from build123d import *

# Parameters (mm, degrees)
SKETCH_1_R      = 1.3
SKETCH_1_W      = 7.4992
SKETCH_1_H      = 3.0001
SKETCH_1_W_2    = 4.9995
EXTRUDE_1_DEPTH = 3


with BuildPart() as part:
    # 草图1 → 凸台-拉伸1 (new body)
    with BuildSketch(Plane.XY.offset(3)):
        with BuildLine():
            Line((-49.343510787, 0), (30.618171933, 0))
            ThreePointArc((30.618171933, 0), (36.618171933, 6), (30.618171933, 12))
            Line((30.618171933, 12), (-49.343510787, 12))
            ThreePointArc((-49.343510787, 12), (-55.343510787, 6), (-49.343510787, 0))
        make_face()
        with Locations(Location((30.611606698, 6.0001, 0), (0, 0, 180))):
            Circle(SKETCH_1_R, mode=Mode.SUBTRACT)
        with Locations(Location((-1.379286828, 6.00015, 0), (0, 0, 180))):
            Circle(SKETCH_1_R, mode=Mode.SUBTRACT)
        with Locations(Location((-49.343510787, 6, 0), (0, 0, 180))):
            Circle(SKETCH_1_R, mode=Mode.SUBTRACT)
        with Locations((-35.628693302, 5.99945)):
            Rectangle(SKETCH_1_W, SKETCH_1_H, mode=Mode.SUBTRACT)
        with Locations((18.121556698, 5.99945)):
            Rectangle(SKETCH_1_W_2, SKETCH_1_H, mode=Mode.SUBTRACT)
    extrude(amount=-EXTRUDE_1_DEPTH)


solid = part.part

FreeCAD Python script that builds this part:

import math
import FreeCAD as App
import Part
import Sketcher

doc = App.newDocument("Part")
params = doc.addObject("Spreadsheet::Sheet", "Params")
for row, (alias, value) in enumerate([
    ("sketch1_radius", "6 mm"),
    ("sketch1_diameter", "2.6 mm"),
    ("pad1_length", "3 mm"),
], start=1):
    params.set(f"A{row}", alias)
    params.set(f"B{row}", "=" + value)
    params.setAlias(f"B{row}", alias)

body = doc.addObject("PartDesign::Body", "Body")

# Sketch on XY plane
sketch1 = body.newObject("Sketcher::SketchObject", "Sketch")
sketch1.AttachmentSupport = (doc.getObject("XY_Plane"), [""])
sketch1.MapMode = "FlatFace"
sketch1.AttachmentOffset = App.Placement(App.Vector(0, 0, 3), App.Rotation())
sketch1.addGeometry(Part.LineSegment(App.Vector(-49.343511, 0, 0), App.Vector(30.618172, 0, 0)), False)
sketch1.addGeometry(Part.ArcOfCircle(Part.Circle(App.Vector(30.618172, 6, 0), App.Vector(0, 0, 1), 6), math.radians(-90), math.radians(90)), False)
sketch1.addGeometry(Part.LineSegment(App.Vector(30.618172, 12, 0), App.Vector(-49.343511, 12, 0)), False)
sketch1.addGeometry(Part.ArcOfCircle(Part.Circle(App.Vector(-49.343511, 6, 0), App.Vector(0, 0, 1), 6), math.radians(90), math.radians(270)), False)
sketch1.addGeometry(Part.Circle(App.Vector(-49.343511, 6, 0), App.Vector(0, 0, 1), 1.3), False)
sketch1.addGeometry(Part.LineSegment(App.Vector(-31.879093, 4.4994, 0), App.Vector(-39.378293, 4.4994, 0)), False)
sketch1.addGeometry(Part.LineSegment(App.Vector(-39.378293, 4.4994, 0), App.Vector(-39.378293, 7.4995, 0)), False)
sketch1.addGeometry(Part.LineSegment(App.Vector(-39.378293, 7.4995, 0), App.Vector(-31.879093, 7.4995, 0)), False)
sketch1.addGeometry(Part.LineSegment(App.Vector(-31.879093, 7.4995, 0), App.Vector(-31.879093, 4.4994, 0)), False)
sketch1.addGeometry(Part.Circle(App.Vector(-1.379287, 6.00015, 0), App.Vector(0, 0, 1), 1.3), False)
sketch1.addGeometry(Part.LineSegment(App.Vector(20.621307, 4.4994, 0), App.Vector(15.621807, 4.4994, 0)), False)
sketch1.addGeometry(Part.LineSegment(App.Vector(15.621807, 4.4994, 0), App.Vector(15.621807, 7.4995, 0)), False)
sketch1.addGeometry(Part.LineSegment(App.Vector(15.621807, 7.4995, 0), App.Vector(20.621307, 7.4995, 0)), False)
sketch1.addGeometry(Part.LineSegment(App.Vector(20.621307, 7.4995, 0), App.Vector(20.621307, 4.4994, 0)), False)
sketch1.addGeometry(Part.Circle(App.Vector(30.611607, 6.0001, 0), App.Vector(0, 0, 1), 1.3), False)
sketch1.addConstraint(Sketcher.Constraint("Tangent", 0, 2, 1, 1))
sketch1.addConstraint(Sketcher.Constraint("Tangent", 1, 2, 2, 1))
sketch1.addConstraint(Sketcher.Constraint("Tangent", 2, 2, 3, 1))
sketch1.addConstraint(Sketcher.Constraint("Tangent", 3, 2, 0, 1))
sketch1.addConstraint(Sketcher.Constraint("Coincident", 5, 2, 6, 1))
sketch1.addConstraint(Sketcher.Constraint("Coincident", 6, 2, 7, 1))
sketch1.addConstraint(Sketcher.Constraint("Coincident", 7, 2, 8, 1))
sketch1.addConstraint(Sketcher.Constraint("Coincident", 8, 2, 5, 1))
sketch1.addConstraint(Sketcher.Constraint("Coincident", 10, 2, 11, 1))
sketch1.addConstraint(Sketcher.Constraint("Coincident", 11, 2, 12, 1))
sketch1.addConstraint(Sketcher.Constraint("Coincident", 12, 2, 13, 1))
sketch1.addConstraint(Sketcher.Constraint("Coincident", 13, 2, 10, 1))
sketch1.addConstraint(Sketcher.Constraint("Horizontal", 0))
sketch1.addConstraint(Sketcher.Constraint("Horizontal", 2))
sketch1.addConstraint(Sketcher.Constraint("Horizontal", 5))
sketch1.addConstraint(Sketcher.Constraint("Vertical", 6))
sketch1.addConstraint(Sketcher.Constraint("Horizontal", 7))
sketch1.addConstraint(Sketcher.Constraint("Vertical", 8))
sketch1.addConstraint(Sketcher.Constraint("Horizontal", 10))
sketch1.addConstraint(Sketcher.Constraint("Vertical", 11))
sketch1.addConstraint(Sketcher.Constraint("Horizontal", 12))
sketch1.addConstraint(Sketcher.Constraint("Vertical", 13))
sketch1.addConstraint(Sketcher.Constraint("Coincident", 4, 3, 3, 3))
sketch1.addConstraint(Sketcher.Constraint("Equal", 4, 9))
sketch1.addConstraint(Sketcher.Constraint("Equal", 9, 14))
sketch1.addConstraint(Sketcher.Constraint("PointOnObject", 0, 2, -1))
sketch1.addConstraint(Sketcher.Constraint("Horizontal", 8, 2, 10, 2))
sketch1.addConstraint(Sketcher.Constraint("Horizontal", 7, 2, 11, 2))
sketch1.addConstraint(Sketcher.Constraint("Radius", 1, 6.0))
sketch1.addConstraint(Sketcher.Constraint("Diameter", 4, 2.6))
sketch1.addConstraint(Sketcher.Constraint("DistanceX", 5, 2, 5, 1, 7.4992))
sketch1.addConstraint(Sketcher.Constraint("DistanceX", 10, 2, 10, 1, 4.9995))
sketch1.addConstraint(Sketcher.Constraint("DistanceY", 6, 1, 6, 2, 3.0001))
sketch1.addConstraint(Sketcher.Constraint("DistanceY", -1, 1, 14, 3, 6.0001))
sketch1.addConstraint(Sketcher.Constraint("DistanceY", -1, 1, 5, 2, 4.4994))
sketch1.addConstraint(Sketcher.Constraint("DistanceX", 10, 2, 14, 3, 14.9898))
sketch1.addConstraint(Sketcher.Constraint("DistanceX", 0, 1, 0, 2, 79.961683))
sketch1.addConstraint(Sketcher.Constraint("DistanceX", -1, 1, 1, 3, 30.618172))
sketch1.addConstraint(Sketcher.Constraint("DistanceY", -1, 1, 9, 3, 6.00015))
sketch1.addConstraint(Sketcher.Constraint("DistanceX", 9, 3, 1, 3, 31.997459))
sketch1.addConstraint(Sketcher.Constraint("DistanceX", -1, 1, 14, 3, 30.611607))
sketch1.addConstraint(Sketcher.Constraint("DistanceX", 5, 2, -1, 1, 39.378293))
sketch1.setExpression("Constraints[28]", "Params.sketch1_radius")
sketch1.setExpression("Constraints[29]", "Params.sketch1_diameter")
pad1 = body.newObject("PartDesign::Pad", "Pad")
pad1.Profile = sketch1
pad1.setExpression("Length", "Params.pad1_length")
pad1.Reversed = True

doc.recompute()
